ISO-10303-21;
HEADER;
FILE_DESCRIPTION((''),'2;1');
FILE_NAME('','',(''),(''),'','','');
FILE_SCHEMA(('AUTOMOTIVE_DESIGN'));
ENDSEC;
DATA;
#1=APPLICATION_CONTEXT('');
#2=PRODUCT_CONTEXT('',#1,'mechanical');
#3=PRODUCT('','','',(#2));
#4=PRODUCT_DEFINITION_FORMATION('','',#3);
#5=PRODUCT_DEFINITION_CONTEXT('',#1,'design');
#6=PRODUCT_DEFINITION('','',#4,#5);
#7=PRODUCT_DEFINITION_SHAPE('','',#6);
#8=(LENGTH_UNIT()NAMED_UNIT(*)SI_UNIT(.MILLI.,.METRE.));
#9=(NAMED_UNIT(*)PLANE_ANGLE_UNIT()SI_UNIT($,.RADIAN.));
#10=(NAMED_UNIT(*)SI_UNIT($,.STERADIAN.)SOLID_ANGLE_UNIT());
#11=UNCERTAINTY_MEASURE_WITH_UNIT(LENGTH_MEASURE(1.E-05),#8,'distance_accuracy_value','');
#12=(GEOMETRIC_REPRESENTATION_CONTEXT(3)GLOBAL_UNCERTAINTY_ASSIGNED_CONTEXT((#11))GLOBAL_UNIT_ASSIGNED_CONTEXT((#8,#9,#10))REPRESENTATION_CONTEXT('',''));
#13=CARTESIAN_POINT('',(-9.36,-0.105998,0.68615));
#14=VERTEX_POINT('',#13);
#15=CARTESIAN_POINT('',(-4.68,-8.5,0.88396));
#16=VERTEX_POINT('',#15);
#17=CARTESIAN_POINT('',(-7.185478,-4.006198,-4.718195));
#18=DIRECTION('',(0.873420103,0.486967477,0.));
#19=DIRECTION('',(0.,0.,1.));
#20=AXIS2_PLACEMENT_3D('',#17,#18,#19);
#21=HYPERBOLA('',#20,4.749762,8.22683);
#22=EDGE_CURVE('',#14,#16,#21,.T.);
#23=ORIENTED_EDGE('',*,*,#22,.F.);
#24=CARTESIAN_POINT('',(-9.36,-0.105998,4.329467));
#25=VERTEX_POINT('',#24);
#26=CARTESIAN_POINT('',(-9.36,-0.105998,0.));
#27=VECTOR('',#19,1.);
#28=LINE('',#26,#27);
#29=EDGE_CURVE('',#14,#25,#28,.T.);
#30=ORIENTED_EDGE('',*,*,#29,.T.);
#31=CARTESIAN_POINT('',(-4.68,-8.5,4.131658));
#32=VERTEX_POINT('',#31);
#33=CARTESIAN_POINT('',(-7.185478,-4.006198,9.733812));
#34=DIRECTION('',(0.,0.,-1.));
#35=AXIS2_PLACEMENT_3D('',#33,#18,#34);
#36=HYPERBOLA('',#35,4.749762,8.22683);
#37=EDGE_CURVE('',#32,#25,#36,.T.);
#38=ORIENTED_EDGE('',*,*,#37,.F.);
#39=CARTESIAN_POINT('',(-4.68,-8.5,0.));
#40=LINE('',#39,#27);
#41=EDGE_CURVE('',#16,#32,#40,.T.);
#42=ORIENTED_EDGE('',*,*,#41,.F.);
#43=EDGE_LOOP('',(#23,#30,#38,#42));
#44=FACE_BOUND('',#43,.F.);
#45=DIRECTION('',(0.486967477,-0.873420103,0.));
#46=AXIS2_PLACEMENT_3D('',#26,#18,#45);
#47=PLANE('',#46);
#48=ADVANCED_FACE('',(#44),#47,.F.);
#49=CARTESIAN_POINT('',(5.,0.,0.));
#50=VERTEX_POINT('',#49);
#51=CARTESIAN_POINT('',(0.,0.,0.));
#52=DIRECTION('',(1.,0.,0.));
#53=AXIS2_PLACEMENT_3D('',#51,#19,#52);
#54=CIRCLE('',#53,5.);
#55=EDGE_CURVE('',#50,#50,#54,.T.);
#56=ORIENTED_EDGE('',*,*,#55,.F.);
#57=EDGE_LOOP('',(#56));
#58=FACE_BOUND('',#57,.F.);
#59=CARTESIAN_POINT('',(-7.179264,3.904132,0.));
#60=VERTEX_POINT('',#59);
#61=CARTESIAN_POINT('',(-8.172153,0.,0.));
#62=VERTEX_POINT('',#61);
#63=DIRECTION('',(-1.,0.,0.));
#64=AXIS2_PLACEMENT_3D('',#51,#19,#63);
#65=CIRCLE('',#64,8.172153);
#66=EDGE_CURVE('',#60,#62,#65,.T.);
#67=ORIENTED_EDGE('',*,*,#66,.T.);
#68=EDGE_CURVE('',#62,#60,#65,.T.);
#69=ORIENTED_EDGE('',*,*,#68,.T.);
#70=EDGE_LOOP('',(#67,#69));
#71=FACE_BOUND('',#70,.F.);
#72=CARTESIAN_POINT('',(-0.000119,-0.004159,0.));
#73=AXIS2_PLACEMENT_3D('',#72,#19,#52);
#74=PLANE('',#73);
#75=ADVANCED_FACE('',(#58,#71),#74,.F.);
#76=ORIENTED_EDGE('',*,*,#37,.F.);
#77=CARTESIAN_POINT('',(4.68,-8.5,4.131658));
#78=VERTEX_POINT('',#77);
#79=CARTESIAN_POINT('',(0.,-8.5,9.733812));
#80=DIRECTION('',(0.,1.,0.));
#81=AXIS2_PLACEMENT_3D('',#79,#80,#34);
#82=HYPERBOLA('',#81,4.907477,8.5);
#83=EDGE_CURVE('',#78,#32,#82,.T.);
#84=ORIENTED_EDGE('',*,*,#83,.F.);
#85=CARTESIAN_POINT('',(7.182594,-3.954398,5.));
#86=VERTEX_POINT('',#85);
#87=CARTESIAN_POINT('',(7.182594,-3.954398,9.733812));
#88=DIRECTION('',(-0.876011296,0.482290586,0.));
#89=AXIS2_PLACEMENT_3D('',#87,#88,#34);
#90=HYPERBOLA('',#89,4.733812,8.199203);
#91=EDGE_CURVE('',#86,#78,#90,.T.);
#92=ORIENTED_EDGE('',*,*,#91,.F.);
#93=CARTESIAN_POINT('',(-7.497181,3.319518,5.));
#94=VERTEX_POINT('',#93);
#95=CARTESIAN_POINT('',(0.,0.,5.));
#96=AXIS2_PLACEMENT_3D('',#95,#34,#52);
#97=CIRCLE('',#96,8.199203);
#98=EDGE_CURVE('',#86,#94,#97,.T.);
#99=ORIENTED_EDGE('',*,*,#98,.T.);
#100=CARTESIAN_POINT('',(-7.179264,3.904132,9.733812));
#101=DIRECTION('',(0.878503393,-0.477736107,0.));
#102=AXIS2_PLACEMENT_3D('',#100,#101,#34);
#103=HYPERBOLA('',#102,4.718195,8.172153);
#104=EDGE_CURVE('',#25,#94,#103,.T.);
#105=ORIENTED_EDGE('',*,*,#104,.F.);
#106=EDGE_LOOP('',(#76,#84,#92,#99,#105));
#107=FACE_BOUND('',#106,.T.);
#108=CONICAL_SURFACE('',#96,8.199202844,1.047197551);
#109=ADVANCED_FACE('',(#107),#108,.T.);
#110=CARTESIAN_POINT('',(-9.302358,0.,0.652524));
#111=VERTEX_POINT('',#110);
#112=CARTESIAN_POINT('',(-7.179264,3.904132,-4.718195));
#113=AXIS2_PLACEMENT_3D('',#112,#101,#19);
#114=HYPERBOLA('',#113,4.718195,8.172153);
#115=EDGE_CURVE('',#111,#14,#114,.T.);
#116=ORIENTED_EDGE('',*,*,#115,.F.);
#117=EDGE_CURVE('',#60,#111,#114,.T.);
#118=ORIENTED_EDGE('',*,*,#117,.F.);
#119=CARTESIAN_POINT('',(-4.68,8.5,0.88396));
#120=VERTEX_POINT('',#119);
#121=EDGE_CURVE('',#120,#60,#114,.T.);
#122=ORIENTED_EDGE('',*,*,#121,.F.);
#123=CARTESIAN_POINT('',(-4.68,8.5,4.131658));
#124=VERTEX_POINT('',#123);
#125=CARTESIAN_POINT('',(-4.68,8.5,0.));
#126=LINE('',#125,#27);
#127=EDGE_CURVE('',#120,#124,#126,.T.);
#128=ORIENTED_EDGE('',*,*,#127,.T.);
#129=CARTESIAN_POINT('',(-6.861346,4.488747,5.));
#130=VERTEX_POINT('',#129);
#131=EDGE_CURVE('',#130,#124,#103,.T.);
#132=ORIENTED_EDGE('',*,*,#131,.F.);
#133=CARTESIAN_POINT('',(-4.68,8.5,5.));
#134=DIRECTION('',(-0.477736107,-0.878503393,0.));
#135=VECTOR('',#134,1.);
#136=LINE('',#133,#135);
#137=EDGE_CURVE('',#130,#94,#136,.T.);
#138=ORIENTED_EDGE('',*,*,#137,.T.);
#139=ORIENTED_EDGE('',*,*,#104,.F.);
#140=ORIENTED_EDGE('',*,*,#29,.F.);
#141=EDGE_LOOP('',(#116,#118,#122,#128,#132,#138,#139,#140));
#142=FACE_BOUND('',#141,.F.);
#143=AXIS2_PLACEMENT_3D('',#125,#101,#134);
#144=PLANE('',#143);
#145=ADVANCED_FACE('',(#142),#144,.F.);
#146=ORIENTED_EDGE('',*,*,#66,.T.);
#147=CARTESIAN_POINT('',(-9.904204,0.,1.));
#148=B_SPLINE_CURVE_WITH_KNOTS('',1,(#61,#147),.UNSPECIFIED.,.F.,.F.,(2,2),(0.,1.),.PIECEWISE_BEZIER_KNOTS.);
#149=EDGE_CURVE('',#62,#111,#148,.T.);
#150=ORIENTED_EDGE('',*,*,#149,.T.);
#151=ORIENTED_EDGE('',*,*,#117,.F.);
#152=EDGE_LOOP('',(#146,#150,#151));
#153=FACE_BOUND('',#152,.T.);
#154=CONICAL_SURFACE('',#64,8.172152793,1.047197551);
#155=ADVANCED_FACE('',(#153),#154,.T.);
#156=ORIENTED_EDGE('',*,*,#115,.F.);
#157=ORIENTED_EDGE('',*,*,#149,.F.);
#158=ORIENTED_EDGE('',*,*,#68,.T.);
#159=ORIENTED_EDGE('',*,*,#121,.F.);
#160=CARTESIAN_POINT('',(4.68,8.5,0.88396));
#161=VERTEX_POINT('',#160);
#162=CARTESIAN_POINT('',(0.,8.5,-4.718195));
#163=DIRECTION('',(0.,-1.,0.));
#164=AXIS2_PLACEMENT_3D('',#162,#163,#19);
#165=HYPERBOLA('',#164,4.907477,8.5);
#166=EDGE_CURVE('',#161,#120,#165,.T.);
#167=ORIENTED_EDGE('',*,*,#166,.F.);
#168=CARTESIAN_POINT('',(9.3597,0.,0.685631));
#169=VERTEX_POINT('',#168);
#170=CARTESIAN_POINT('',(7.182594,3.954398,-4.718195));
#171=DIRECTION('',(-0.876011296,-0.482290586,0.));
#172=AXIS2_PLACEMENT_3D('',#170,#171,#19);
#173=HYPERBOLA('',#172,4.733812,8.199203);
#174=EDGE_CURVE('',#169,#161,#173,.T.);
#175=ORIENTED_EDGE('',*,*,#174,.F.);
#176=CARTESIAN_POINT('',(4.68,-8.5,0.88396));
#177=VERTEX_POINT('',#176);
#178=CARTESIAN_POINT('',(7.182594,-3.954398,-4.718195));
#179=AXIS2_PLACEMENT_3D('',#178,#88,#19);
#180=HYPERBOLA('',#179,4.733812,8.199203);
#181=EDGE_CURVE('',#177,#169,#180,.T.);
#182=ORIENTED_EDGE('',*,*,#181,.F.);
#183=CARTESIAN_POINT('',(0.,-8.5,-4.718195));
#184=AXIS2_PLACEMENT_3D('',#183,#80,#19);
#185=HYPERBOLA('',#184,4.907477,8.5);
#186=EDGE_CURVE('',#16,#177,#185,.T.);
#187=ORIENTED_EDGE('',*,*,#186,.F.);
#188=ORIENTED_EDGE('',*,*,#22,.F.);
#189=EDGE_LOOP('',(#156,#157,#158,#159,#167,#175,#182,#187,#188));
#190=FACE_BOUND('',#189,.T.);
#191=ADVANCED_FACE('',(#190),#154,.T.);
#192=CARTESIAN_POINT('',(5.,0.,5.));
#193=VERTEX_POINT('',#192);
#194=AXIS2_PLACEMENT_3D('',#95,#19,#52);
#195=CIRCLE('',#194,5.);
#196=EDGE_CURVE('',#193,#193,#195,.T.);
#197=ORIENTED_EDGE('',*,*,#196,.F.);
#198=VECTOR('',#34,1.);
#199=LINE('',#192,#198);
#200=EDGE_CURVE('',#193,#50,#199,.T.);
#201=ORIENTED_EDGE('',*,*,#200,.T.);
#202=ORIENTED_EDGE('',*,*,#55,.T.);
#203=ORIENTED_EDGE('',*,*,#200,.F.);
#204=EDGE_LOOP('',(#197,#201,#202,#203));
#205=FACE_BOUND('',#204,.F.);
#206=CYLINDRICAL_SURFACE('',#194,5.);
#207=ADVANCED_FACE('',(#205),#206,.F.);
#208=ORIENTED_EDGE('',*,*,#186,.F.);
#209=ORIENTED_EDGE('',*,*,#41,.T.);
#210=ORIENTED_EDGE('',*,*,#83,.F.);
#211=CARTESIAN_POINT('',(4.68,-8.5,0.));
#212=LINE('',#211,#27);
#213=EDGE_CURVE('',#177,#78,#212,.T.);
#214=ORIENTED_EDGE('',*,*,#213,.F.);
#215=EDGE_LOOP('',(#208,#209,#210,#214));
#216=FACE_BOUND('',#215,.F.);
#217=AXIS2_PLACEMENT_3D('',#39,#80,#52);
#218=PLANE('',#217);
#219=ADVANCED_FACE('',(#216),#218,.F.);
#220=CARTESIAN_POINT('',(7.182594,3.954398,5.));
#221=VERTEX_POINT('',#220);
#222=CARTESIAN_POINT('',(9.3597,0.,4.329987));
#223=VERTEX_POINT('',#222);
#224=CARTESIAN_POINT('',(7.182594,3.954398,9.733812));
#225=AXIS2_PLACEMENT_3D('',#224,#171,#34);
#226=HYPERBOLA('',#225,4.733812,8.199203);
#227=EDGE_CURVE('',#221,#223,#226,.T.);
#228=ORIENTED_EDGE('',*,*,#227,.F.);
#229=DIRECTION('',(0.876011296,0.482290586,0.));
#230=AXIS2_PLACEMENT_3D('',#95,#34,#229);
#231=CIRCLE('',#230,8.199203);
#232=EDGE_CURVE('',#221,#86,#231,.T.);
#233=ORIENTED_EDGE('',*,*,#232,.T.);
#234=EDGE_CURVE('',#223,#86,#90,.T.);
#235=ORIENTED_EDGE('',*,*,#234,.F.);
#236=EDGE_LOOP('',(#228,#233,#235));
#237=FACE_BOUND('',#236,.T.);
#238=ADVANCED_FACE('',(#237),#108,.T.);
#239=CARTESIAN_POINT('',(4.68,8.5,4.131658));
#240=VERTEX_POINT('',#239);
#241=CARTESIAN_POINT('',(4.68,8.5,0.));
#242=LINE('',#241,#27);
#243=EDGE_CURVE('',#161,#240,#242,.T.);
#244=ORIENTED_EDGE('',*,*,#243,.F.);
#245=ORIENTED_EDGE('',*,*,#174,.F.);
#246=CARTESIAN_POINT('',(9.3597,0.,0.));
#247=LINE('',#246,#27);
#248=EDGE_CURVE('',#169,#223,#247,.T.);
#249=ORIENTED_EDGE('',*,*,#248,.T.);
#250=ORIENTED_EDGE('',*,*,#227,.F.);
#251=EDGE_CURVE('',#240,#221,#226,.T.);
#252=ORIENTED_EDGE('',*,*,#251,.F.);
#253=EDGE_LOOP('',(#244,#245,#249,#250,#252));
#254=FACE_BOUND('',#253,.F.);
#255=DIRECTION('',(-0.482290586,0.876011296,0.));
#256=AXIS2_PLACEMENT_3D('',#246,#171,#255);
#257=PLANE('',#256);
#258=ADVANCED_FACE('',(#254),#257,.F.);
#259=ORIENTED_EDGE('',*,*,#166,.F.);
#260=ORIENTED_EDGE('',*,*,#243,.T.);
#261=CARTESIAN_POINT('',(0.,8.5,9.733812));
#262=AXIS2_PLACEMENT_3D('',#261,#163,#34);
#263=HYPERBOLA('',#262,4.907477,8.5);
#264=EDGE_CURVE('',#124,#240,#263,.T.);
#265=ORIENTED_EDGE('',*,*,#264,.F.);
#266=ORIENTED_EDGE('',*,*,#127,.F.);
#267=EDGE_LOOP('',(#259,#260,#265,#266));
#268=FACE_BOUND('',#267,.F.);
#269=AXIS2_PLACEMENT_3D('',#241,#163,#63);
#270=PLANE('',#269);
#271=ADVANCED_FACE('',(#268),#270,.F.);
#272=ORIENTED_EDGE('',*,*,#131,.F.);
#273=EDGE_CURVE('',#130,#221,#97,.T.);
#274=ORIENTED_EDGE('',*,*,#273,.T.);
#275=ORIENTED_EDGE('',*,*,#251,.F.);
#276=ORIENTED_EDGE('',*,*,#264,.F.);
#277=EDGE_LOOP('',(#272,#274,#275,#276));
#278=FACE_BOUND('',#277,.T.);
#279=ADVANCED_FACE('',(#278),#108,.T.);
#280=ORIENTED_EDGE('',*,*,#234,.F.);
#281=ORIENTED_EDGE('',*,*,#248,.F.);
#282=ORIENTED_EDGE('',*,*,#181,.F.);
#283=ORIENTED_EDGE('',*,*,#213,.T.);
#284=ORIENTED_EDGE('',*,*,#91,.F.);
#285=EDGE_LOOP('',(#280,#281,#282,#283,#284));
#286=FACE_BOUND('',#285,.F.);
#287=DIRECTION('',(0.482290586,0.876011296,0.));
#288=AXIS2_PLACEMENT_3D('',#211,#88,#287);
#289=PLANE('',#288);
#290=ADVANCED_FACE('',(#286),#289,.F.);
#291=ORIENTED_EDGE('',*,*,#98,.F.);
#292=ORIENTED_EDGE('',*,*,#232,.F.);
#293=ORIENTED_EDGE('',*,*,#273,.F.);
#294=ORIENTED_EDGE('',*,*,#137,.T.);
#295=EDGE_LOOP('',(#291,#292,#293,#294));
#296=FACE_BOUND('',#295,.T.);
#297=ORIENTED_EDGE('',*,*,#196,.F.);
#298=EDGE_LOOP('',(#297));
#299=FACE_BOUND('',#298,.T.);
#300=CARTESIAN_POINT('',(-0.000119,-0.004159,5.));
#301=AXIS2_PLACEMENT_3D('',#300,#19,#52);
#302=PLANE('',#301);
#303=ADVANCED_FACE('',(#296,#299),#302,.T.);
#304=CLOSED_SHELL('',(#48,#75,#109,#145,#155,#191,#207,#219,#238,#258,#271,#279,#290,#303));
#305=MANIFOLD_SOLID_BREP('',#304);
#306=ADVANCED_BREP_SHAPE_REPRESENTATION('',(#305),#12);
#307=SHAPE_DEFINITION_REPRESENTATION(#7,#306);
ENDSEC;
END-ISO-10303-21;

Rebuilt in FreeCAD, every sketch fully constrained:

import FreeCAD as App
import Part
import Sketcher

V = App.Vector

doc = App.newDocument("Part")
body = doc.addObject("PartDesign::Body", "Body")

# Sketch on XY plane
sketch1 = body.newObject("Sketcher::SketchObject", "Sketch")
sketch1.AttachmentSupport = (doc.getObject("XY_Plane"), [""])
sketch1.MapMode = "FlatFace"
sketch1.addGeometry(Part.LineSegment(V(9, 0, 0), V(5, 8, 0)), False)
sketch1.addGeometry(Part.LineSegment(V(5, 8, 0), V(-5, 8, 0)), False)
sketch1.addGeometry(Part.LineSegment(V(-5, 8, 0), V(-9, 0, 0)), False)
sketch1.addGeometry(Part.LineSegment(V(-9, 0, 0), V(-5, -8, 0)), False)
sketch1.addGeometry(Part.LineSegment(V(-5, -8, 0), V(5, -8, 0)), False)
sketch1.addGeometry(Part.LineSegment(V(5, -8, 0), V(9, 0, 0)), False)
sketch1.addConstraint(Sketcher.Constraint("Coincident", 0, 2, 1, 1))
sketch1.addConstraint(Sketcher.Constraint("Coincident", 1, 2, 2, 1))
sketch1.addConstraint(Sketcher.Constraint("Coincident", 2, 2, 3, 1))
sketch1.addConstraint(Sketcher.Constraint("Coincident", 3, 2, 4, 1))
sketch1.addConstraint(Sketcher.Constraint("Coincident", 4, 2, 5, 1))
sketch1.addConstraint(Sketcher.Constraint("Coincident", 5, 2, 0, 1))
sketch1.addConstraint(Sketcher.Constraint("Horizontal", 1))
sketch1.addConstraint(Sketcher.Constraint("Horizontal", 4))
sketch1.addConstraint(Sketcher.Constraint("Symmetric", 0, 2, 3, 2, -1, 1))
sketch1.addConstraint(Sketcher.Constraint("PointOnObject", 5, 2, -1))
sketch1.addConstraint(Sketcher.Constraint("Vertical", 1, 2, 3, 2))
sketch1.addConstraint(Sketcher.Constraint("Vertical", 0, 2, 4, 2))
sketch1.addConstraint(Sketcher.Constraint("DistanceY", 3, 2, 1, 2, 17.0))
sketch1.addConstraint(Sketcher.Constraint("DistanceX", 1, 2, 1, 1, 9.36))
sketch1.addConstraint(Sketcher.Constraint("DistanceX", 2, 2, -1, 1, 9.36))
sketch1.addConstraint(Sketcher.Constraint("Distance", 3, 9.610498))
sketch1.addConstraint(Sketcher.Constraint("DistanceX", -1, 1, 5, 2, 9.3597))
pad1 = body.newObject("PartDesign::Pad", "Pad")
pad1.Profile = sketch1
pad1.Length = 5

# Sketch on XY plane
sketch2 = body.newObject("Sketcher::SketchObject", "Sketch001")
sketch2.AttachmentSupport = (doc.getObject("XY_Plane"), [""])
sketch2.MapMode = "FlatFace"
sketch2.AttachmentOffset = App.Placement(V(0, 0, 5), App.Rotation())
sketch2.addGeometry(Part.LineSegment(V(-30, 29, 0), V(-30, -29, 0)), False)
sketch2.addGeometry(Part.LineSegment(V(-30, -29, 0), V(30, -29, 0)), False)
sketch2.addGeometry(Part.LineSegment(V(30, -29, 0), V(30, 29, 0)), False)
sketch2.addGeometry(Part.LineSegment(V(30, 29, 0), V(-30, 29, 0)), False)
sketch2.addGeometry(Part.Circle(V(0, 0, 0), V(0, 0, 1), 8), False)
sketch2.addConstraint(Sketcher.Constraint("Coincident", 0, 2, 1, 1))
sketch2.addConstraint(Sketcher.Constraint("Coincident", 1, 2, 2, 1))
sketch2.addConstraint(Sketcher.Constraint("Coincident", 2, 2, 3, 1))
sketch2.addConstraint(Sketcher.Constraint("Coincident", 3, 2, 0, 1))
sketch2.addConstraint(Sketcher.Constraint("Vertical", 0))
sketch2.addConstraint(Sketcher.Constraint("Horizontal", 1))
sketch2.addConstraint(Sketcher.Constraint("Vertical", 2))
sketch2.addConstraint(Sketcher.Constraint("Horizontal", 3))
sketch2.addConstraint(Sketcher.Constraint("Coincident", 4, 3, -1, 1))
sketch2.addConstraint(Sketcher.Constraint("Symmetric", 0, 2, 2, 2, -1, 1))
sketch2.addConstraint(Sketcher.Constraint("DistanceX", 1, 1, 1, 2, 60.516))
sketch2.addConstraint(Sketcher.Constraint("DistanceY", 0, 2, 0, 1, 58.796))
sketch2.addConstraint(Sketcher.Constraint("Diameter", 4, 16.398406))
pocket1 = body.newObject("PartDesign::Pocket", "Pocket")
pocket1.Profile = sketch2
pocket1.Length = 10
pocket1.TaperAngle = 60

# Sketch on XY plane
sketch3 = body.newObject("Sketcher::SketchObject", "Sketch002")
sketch3.AttachmentSupport = (doc.getObject("XY_Plane"), [""])
sketch3.MapMode = "FlatFace"
sketch3.addGeometry(Part.LineSegment(V(15, 14, 0), V(15, -14, 0)), False)
sketch3.addGeometry(Part.LineSegment(V(15, -14, 0), V(-15, -14, 0)), False)
sketch3.addGeometry(Part.LineSegment(V(-15, -14, 0), V(-15, 14, 0)), False)
sketch3.addGeometry(Part.LineSegment(V(-15, 14, 0), V(15, 14, 0)), False)
sketch3.addGeometry(Part.Circle(V(0, 0, 0), V(0, 0, 1), 8), False)
sketch3.addConstraint(Sketcher.Constraint("Coincident", 0, 2, 1, 1))
sketch3.addConstraint(Sketcher.Constraint("Coincident", 1, 2, 2, 1))
sketch3.addConstraint(Sketcher.Constraint("Coincident", 2, 2, 3, 1))
sketch3.addConstraint(Sketcher.Constraint("Coincident", 3, 2, 0, 1))
sketch3.addConstraint(Sketcher.Constraint("Vertical", 0))
sketch3.addConstraint(Sketcher.Constraint("Horizontal", 1))
sketch3.addConstraint(Sketcher.Constraint("Vertical", 2))
sketch3.addConstraint(Sketcher.Constraint("Horizontal", 3))
sketch3.addConstraint(Sketcher.Constraint("Coincident", 4, 3, -1, 1))
sketch3.addConstraint(Sketcher.Constraint("Symmetric", 0, 2, 2, 2, -1, 1))
sketch3.addConstraint(Sketcher.Constraint("DistanceX", 1, 2, 1, 1, 29.34))
sketch3.addConstraint(Sketcher.Constraint("DistanceY", 0, 2, 0, 1, 27.62))
sketch3.addConstraint(Sketcher.Constraint("Diameter", 4, 16.344306))
pocket2 = body.newObject("PartDesign::Pocket", "Pocket001")
pocket2.Profile = sketch3
pocket2.Length = 1
pocket2.Reversed = True
pocket2.TaperAngle = 60

# Sketch on XY plane
sketch4 = body.newObject("Sketcher::SketchObject", "Sketch003")
sketch4.AttachmentSupport = (doc.getObject("XY_Plane"), [""])
sketch4.MapMode = "FlatFace"
sketch4.AttachmentOffset = App.Placement(V(0, 0, 5), App.Rotation())
sketch4.addGeometry(Part.Circle(V(0, 0, 0), V(0, 0, 1), 5), False)
sketch4.addConstraint(Sketcher.Constraint("Coincident", 0, 3, -1, 1))
sketch4.addConstraint(Sketcher.Constraint("Diameter", 0, 10.0))
pocket3 = body.newObject("PartDesign::Pocket", "Pocket002")
pocket3.Profile = sketch4
pocket3.Length = 8

doc.recompute()
